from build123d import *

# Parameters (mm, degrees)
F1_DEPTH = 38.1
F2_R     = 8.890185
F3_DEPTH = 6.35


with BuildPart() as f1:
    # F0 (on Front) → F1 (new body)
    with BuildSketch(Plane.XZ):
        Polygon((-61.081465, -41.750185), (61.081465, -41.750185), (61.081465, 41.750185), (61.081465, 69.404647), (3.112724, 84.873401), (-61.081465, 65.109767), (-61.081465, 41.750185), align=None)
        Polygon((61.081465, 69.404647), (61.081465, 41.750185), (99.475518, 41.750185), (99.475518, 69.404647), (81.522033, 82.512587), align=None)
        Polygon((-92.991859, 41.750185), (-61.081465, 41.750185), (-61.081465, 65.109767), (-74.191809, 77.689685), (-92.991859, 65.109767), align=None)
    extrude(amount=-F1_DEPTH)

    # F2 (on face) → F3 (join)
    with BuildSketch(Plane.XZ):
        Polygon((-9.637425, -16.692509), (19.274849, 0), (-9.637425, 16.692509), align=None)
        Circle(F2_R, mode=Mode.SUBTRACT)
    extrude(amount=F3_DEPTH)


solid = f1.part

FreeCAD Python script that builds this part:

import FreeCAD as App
import Part
import Sketcher
from FreeCAD import Vector
Q = App.Units.Quantity


def add_polygon(sketch, points):
    """Adds a closed chain of lines whose ends are joined by coincident constraints."""
    first, n = sketch.GeometryCount, len(points)
    for a, b in zip(points, points[1:] + points[:1]):
        sketch.addGeometry(Part.LineSegment(App.Vector(*a, 0), App.Vector(*b, 0)), False)
    for i in range(n):
        sketch.addConstraint(Sketcher.Constraint("Coincident", first + i, 2, first + (i + 1) % n, 1))

doc = App.newDocument("Part")
body = doc.addObject("PartDesign::Body", "Body")

# Sketch on XZ plane
sketch1 = body.newObject("Sketcher::SketchObject", "Sketch")
sketch1.AttachmentSupport = (doc.getObject("XZ_Plane"), [""])
sketch1.MapMode = "FlatFace"
add_polygon(sketch1, [(-61, -42), (61, -42), (61, 42), (99, 42), (99, 69), (82, 83), (61, 69), (3, 85), (-61, 65), (-74, 78), (-93, 65), (-93, 42), (-61, 42)])  # lines 0-12
sketch1.addConstraint([
    Sketcher.Constraint("Horizontal", 0),
    Sketcher.Constraint("Vertical", 1),
    Sketcher.Constraint("Horizontal", 2),
    Sketcher.Constraint("Vertical", 3),
    Sketcher.Constraint("Vertical", 10),
    Sketcher.Constraint("Horizontal", 11),
    Sketcher.Constraint("Vertical", 12),
    Sketcher.Constraint("Symmetric", 0, 2, 11, 2, -1, 1),
    Sketcher.Constraint("Horizontal", 3, 2, 5, 2),
    Sketcher.Constraint("Horizontal", 7, 2, 9, 2),
    Sketcher.Constraint("Horizontal", 2, 2, 10, 2),
    Sketcher.Constraint("Vertical", 1, 2, 5, 2),
    Sketcher.Constraint("Vertical", 7, 2, 11, 2),
    Sketcher.Constraint("Distance", 5, Q("0.956 in")),
    Sketcher.Constraint("DistanceX", 0, 1, 0, 2, 122.16293),
    Sketcher.Constraint("DistanceY", 1, 1, 1, 2, 83.50037),
    Sketcher.Constraint("DistanceY", 3, 1, 3, 2, 27.654462),
    Sketcher.Constraint("DistanceY", -1, 1, 6, 2, 84.873401),
    Sketcher.Constraint("DistanceY", 2, 2, 4, 2, 40.762402),
    Sketcher.Constraint("DistanceY", 1, 2, 8, 2, 35.9395),
    Sketcher.Constraint("Distance", 4, 22.229389),
    Sketcher.Constraint("Distance", 8, 18.16963),
    Sketcher.Constraint("DistanceX", 11, 1, 11, 2, 31.910394),
    Sketcher.Constraint("DistanceY", 10, 2, 10, 1, 23.359582),
    Sketcher.Constraint("DistanceX", 6, 2, 5, 2, 57.968741),
])
pad1 = body.newObject("PartDesign::Pad", "Pad")
pad1.Profile = sketch1
pad1.Length = Q("1.5 in")
pad1.Reversed = True

# Sketch on XZ plane
sketch2 = body.newObject("Sketcher::SketchObject", "Sketch001")
sketch2.AttachmentSupport = (doc.getObject("XZ_Plane"), [""])
sketch2.MapMode = "FlatFace"
add_polygon(sketch2, [(-10, -17), (19, 0), (-10, 17)])  # lines 0-2
sketch2.addGeometry(Part.Circle(Vector(0, 0, 0), Vector(0, 0, 1), 9), False)  # 3
sketch2.addConstraint([
    Sketcher.Constraint("Vertical", 2),
    Sketcher.Constraint("Coincident", 3, 3, -1, 1),
    Sketcher.Constraint("PointOnObject", 0, 2, -1),
    Sketcher.Constraint("Equal", 0, 1),
    Sketcher.Constraint("Angle", 0, Q("30 deg")),
    Sketcher.Constraint("Diameter", 3, 17.78037),
    Sketcher.Constraint("DistanceY", 2, 2, 2, 1, 33.385018),
    Sketcher.Constraint("DistanceX", -1, 1, 0, 2, 19.274849),
])
pad2 = body.newObject("PartDesign::Pad", "Pad001")
pad2.Profile = sketch2
pad2.Length = Q("0.25 in")

doc.recompute()
